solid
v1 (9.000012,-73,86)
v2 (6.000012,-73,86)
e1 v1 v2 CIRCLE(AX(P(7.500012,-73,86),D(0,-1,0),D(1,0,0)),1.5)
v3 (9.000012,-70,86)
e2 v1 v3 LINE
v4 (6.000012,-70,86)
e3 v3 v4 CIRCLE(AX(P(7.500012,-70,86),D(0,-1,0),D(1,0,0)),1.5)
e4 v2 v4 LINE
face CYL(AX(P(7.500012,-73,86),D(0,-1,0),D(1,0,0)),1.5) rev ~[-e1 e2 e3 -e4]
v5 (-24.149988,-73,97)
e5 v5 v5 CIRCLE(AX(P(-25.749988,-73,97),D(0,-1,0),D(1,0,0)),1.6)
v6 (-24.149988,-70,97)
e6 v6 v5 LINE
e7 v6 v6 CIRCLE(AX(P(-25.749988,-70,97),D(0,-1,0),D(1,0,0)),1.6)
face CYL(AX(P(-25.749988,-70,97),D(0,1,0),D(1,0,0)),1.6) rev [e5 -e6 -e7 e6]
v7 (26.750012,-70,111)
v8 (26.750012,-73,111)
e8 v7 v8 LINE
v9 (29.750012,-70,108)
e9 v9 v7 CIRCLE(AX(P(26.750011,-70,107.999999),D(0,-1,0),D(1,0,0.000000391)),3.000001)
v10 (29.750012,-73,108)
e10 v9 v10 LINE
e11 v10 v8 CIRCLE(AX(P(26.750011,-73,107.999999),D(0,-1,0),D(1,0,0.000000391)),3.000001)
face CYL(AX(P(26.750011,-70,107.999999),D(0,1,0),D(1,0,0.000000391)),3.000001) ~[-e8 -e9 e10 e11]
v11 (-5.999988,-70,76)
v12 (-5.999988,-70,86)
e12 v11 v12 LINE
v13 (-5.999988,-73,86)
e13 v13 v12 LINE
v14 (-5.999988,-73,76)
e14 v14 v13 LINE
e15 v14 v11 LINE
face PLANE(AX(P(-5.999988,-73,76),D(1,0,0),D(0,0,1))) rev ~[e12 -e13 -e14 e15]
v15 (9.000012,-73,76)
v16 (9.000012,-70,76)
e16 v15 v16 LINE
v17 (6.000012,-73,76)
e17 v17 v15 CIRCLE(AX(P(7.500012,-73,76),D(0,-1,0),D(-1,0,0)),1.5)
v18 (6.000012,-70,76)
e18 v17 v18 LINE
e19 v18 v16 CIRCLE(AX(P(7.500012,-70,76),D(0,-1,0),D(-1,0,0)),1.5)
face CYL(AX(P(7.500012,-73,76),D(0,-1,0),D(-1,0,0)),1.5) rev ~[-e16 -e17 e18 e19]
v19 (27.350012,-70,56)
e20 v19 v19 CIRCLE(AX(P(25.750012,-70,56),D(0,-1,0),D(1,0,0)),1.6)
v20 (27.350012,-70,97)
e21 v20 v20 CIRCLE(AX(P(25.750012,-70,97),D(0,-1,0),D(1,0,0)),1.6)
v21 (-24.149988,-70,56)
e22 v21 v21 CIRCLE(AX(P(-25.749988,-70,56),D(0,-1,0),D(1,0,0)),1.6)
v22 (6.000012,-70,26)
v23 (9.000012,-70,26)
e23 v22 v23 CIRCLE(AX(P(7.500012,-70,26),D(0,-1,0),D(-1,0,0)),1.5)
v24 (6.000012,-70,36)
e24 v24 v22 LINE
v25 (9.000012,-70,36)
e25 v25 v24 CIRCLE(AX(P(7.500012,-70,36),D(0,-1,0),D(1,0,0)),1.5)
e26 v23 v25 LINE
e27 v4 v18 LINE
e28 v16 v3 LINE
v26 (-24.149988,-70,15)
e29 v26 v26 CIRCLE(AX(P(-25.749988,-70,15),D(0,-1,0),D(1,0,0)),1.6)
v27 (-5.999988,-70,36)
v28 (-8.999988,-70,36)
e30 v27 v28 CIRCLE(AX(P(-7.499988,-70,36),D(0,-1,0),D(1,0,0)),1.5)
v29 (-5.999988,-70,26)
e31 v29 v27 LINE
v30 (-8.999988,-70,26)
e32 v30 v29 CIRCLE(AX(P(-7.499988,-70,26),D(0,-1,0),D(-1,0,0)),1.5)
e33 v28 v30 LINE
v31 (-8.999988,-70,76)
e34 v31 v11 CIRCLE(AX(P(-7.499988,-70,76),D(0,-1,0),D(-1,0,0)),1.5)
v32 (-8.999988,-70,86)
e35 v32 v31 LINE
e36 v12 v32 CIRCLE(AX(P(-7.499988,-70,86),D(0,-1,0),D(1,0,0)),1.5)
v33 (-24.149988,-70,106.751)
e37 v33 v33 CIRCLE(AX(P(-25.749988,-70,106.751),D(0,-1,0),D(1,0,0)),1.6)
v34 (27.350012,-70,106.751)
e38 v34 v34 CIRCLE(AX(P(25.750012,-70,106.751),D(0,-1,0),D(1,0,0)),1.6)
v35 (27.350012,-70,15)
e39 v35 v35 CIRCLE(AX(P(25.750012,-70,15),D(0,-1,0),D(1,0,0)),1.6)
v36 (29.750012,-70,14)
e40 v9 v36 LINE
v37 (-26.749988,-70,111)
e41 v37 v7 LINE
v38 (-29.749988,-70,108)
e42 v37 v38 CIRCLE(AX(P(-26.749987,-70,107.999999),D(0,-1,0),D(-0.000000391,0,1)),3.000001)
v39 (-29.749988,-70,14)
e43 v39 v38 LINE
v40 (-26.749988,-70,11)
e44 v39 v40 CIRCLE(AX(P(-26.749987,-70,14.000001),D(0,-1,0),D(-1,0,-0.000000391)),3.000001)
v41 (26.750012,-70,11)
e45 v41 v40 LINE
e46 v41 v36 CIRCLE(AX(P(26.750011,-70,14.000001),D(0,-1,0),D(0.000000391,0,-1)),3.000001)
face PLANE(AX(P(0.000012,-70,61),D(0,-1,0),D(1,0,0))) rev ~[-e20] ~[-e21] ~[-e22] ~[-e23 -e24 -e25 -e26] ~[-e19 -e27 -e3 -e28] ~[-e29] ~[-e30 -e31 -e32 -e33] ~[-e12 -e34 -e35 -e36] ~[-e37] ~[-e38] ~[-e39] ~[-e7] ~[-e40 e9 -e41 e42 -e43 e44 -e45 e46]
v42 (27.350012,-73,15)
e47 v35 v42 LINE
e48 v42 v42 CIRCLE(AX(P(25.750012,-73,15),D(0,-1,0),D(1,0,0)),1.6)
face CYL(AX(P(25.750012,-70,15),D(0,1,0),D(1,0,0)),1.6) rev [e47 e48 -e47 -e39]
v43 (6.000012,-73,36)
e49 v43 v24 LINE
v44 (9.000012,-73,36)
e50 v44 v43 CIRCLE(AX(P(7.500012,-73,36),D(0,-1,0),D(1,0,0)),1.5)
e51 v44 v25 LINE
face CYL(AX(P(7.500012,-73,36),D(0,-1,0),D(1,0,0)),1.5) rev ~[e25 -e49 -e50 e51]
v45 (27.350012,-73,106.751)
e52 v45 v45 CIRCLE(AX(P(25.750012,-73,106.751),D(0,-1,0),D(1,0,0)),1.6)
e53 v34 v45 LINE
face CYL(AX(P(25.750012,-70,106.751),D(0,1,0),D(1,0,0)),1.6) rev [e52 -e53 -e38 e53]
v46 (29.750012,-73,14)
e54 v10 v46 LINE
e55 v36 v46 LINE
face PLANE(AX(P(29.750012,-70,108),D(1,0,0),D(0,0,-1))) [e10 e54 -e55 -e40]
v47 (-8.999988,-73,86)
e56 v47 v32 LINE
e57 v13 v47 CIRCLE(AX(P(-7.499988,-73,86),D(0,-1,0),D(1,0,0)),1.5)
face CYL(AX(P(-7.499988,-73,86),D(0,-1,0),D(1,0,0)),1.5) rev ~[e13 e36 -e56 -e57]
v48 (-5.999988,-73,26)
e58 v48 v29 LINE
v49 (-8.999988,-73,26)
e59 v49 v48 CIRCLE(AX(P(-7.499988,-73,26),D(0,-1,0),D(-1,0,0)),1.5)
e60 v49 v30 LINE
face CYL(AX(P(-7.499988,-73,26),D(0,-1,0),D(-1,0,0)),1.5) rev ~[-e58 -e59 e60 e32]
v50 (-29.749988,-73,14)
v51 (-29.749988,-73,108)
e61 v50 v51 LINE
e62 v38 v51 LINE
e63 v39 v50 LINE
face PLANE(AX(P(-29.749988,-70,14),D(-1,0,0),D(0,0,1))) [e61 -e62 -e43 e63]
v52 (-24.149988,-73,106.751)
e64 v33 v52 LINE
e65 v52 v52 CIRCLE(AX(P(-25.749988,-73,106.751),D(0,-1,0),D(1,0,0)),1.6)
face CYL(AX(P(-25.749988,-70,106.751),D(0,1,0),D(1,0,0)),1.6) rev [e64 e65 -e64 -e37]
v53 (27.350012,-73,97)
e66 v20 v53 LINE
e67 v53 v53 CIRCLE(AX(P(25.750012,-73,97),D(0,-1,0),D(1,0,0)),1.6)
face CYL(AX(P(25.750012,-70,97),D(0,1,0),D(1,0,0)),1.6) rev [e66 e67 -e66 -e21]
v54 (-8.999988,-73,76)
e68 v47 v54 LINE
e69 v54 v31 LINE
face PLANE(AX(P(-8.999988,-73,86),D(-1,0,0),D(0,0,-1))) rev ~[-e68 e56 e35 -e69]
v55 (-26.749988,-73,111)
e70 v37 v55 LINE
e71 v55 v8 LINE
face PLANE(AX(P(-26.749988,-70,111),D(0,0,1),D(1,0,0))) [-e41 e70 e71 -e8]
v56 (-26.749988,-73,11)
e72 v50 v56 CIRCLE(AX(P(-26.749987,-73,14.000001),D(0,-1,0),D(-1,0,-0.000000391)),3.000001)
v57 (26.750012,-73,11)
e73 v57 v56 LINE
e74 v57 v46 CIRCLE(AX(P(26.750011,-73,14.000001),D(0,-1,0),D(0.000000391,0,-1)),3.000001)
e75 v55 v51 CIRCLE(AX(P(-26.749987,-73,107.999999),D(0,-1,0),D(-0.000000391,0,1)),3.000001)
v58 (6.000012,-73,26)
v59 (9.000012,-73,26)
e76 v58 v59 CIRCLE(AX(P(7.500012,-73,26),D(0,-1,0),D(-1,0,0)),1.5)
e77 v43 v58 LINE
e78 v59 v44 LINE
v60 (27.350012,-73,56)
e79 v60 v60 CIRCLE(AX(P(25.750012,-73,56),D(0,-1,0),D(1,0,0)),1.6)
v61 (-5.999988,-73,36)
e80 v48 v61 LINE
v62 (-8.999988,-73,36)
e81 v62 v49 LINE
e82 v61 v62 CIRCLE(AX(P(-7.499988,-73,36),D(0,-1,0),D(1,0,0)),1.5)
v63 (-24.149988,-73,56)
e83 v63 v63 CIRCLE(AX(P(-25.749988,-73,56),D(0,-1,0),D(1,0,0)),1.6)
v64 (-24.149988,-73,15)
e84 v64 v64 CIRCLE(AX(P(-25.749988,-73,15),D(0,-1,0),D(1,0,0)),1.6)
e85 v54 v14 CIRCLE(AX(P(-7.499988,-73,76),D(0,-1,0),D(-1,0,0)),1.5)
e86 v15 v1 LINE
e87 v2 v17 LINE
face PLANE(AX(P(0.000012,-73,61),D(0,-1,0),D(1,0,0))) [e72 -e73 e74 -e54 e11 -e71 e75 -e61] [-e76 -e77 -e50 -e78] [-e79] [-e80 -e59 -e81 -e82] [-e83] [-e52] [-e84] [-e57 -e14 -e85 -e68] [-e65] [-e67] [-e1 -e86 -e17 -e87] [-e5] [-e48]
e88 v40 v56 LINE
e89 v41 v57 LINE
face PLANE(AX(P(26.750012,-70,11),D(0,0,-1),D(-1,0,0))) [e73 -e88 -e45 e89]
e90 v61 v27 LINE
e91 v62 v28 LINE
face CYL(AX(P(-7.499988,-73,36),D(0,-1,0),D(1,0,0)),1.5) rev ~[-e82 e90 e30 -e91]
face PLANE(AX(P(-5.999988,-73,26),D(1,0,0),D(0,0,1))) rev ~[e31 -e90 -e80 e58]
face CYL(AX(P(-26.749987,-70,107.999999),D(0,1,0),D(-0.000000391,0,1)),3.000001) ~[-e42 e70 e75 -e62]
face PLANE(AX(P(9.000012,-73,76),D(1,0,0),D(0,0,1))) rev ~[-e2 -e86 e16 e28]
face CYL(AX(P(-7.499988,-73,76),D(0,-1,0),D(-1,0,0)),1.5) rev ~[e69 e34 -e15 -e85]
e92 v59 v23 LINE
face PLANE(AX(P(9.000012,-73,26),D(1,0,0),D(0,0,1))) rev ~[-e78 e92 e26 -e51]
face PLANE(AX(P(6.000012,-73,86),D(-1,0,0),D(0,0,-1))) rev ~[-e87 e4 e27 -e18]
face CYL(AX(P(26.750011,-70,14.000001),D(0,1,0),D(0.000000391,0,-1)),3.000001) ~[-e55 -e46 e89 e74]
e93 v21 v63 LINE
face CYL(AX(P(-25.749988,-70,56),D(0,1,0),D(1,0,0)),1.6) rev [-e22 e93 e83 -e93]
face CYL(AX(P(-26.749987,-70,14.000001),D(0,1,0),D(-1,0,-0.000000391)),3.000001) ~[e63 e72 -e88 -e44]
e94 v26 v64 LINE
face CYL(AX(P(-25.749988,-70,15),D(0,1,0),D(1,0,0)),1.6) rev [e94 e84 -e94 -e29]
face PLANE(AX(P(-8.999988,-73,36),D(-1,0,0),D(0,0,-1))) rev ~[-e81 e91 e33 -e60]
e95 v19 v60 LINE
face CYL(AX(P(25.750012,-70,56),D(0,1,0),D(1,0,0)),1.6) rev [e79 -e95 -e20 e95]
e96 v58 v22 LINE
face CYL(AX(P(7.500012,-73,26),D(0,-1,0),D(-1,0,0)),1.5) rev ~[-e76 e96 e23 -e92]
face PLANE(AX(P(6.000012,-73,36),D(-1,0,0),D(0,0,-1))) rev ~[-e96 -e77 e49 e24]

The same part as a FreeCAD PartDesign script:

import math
import FreeCAD as App
import Part
import Sketcher

V = App.Vector

doc = App.newDocument("Part")
body = doc.addObject("PartDesign::Body", "Body")

# Sketch on XZ plane
sketch1 = body.newObject("Sketcher::SketchObject", "Sketch")
sketch1.AttachmentSupport = (doc.getObject("XZ_Plane"), [""])
sketch1.MapMode = "FlatFace"
sketch1.AttachmentOffset = App.Placement(V(0, 0, 70), App.Rotation())
sketch1.addGeometry([
    Part.ArcOfCircle(Part.Circle(V(-26.7, 108, 0), V(0, 0, 1), 3), math.radians(90), math.radians(180)),  # 0
    Part.LineSegment(V(-29.7, 108, 0), V(-29.7, 14, 0)),  # 1
    Part.ArcOfCircle(Part.Circle(V(-26.7, 14, 0), V(0, 0, 1), 3), math.radians(-180), math.radians(-90)),  # 2
    Part.LineSegment(V(-26.7, 11, 0), V(26.8, 11, 0)),  # 3
    Part.ArcOfCircle(Part.Circle(V(26.8, 14, 0), V(0, 0, 1), 3), math.radians(-90), math.radians(0)),  # 4
    Part.LineSegment(V(29.8, 14, 0), V(29.8, 108, 0)),  # 5
    Part.ArcOfCircle(Part.Circle(V(26.8, 108, 0), V(0, 0, 1), 3), math.radians(0), math.radians(90)),  # 6
    Part.LineSegment(V(26.8, 111, 0), V(-26.7, 111, 0)),  # 7
    Part.Circle(V(-25.7, 15, 0), V(0, 0, 1), 1.6),  # 8
    Part.Circle(V(-25.7, 56, 0), V(0, 0, 1), 1.6),  # 9
    Part.Circle(V(25.8, 15, 0), V(0, 0, 1), 1.6),  # 10
    Part.Circle(V(25.8, 56, 0), V(0, 0, 1), 1.6),  # 11
    Part.Circle(V(-25.7, 97, 0), V(0, 0, 1), 1.6),  # 12
    Part.Circle(V(-25.7, 106.8, 0), V(0, 0, 1), 1.6),  # 13
    Part.Circle(V(25.8, 97, 0), V(0, 0, 1), 1.6),  # 14
    Part.Circle(V(25.8, 106.8, 0), V(0, 0, 1), 1.6),  # 15
], False)
sketch1.addConstraint([
    Sketcher.Constraint("Tangent", 0, 2, 1, 1),
    Sketcher.Constraint("Tangent", 1, 2, 2, 1),
    Sketcher.Constraint("Tangent", 2, 2, 3, 1),
    Sketcher.Constraint("Tangent", 3, 2, 4, 1),
    Sketcher.Constraint("Tangent", 4, 2, 5, 1),
    Sketcher.Constraint("Tangent", 5, 2, 6, 1),
    Sketcher.Constraint("Tangent", 6, 2, 7, 1),
    Sketcher.Constraint("Tangent", 7, 2, 0, 1),
    Sketcher.Constraint("Vertical", 1),
    Sketcher.Constraint("Horizontal", 3),
    Sketcher.Constraint("Vertical", 5),
    Sketcher.Constraint("Horizontal", 7),
    Sketcher.Constraint("Equal", 0, 2),
    Sketcher.Constraint("Equal", 2, 4),
    Sketcher.Constraint("Equal", 4, 6),
    Sketcher.Constraint("Equal", 8, 9),
    Sketcher.Constraint("Equal", 9, 10),
    Sketcher.Constraint("Equal", 10, 11),
    Sketcher.Constraint("Equal", 11, 12),
    Sketcher.Constraint("Equal", 12, 13),
    Sketcher.Constraint("Equal", 13, 14),
    Sketcher.Constraint("Equal", 14, 15),
    Sketcher.Constraint("Horizontal", 8, 3, 10, 3),
    Sketcher.Constraint("Horizontal", 9, 3, 11, 3),
    Sketcher.Constraint("Horizontal", 12, 3, 14, 3),
    Sketcher.Constraint("Horizontal", 13, 3, 15, 3),
    Sketcher.Constraint("Vertical", 8, 3, 9, 3),
    Sketcher.Constraint("Vertical", 10, 3, 11, 3),
    Sketcher.Constraint("Vertical", 9, 3, 12, 3),
    Sketcher.Constraint("Vertical", 12, 3, 13, 3),
    Sketcher.Constraint("Vertical", 11, 3, 14, 3),
    Sketcher.Constraint("Vertical", 14, 3, 15, 3),
    Sketcher.Constraint("Radius", 0, 3.000001),
    Sketcher.Constraint("Diameter", 8, 3.2),
    Sketcher.Constraint("DistanceY", 1, 2, 1, 1, 94.0),
    Sketcher.Constraint("DistanceX", 3, 1, 3, 2, 53.5),
    Sketcher.Constraint("DistanceY", -1, 1, 0, 3, 107.999999),
    Sketcher.Constraint("DistanceY", -1, 1, 8, 3, 15.0),
    Sketcher.Constraint("DistanceY", -1, 1, 9, 3, 56.0),
    Sketcher.Constraint("DistanceY", -1, 1, 12, 3, 97.0),
    Sketcher.Constraint("DistanceX", 2, 3, 8, 3, 0.999999),
    Sketcher.Constraint("DistanceX", 10, 3, 4, 3, 0.999999),
    Sketcher.Constraint("DistanceY", -1, 1, 13, 3, 106.751),
    Sketcher.Constraint("DistanceX", -1, 1, 4, 3, 26.750011),
])
pad1 = body.newObject("PartDesign::Pad", "Pad")
pad1.Profile = sketch1
pad1.Length = 3

# Sketch on XZ plane
sketch2 = body.newObject("Sketcher::SketchObject", "Sketch001")
sketch2.AttachmentSupport = (doc.getObject("XZ_Plane"), [""])
sketch2.MapMode = "FlatFace"
sketch2.AttachmentOffset = App.Placement(V(0, 0, 73), App.Rotation())
sketch2.addGeometry([
    Part.ArcOfCircle(Part.Circle(V(-7.5, 86, 0), V(0, 0, 1), 1.5), math.radians(0), math.radians(180)),  # 0
    Part.LineSegment(V(-9, 86, 0), V(-9, 76, 0)),  # 1
    Part.ArcOfCircle(Part.Circle(V(-7.5, 76, 0), V(0, 0, 1), 1.5), math.radians(180), math.radians(360)),  # 2
    Part.LineSegment(V(-6, 76, 0), V(-6, 86, 0)),  # 3
    Part.ArcOfCircle(Part.Circle(V(7.5, 86, 0), V(0, 0, 1), 1.5), math.radians(0), math.radians(180)),  # 4
    Part.LineSegment(V(6, 86, 0), V(6, 76, 0)),  # 5
    Part.ArcOfCircle(Part.Circle(V(7.5, 76, 0), V(0, 0, 1), 1.5), math.radians(180), math.radians(360)),  # 6
    Part.LineSegment(V(9, 76, 0), V(9, 86, 0)),  # 7
], False)
sketch2.addConstraint([
    Sketcher.Constraint("Tangent", 0, 2, 1, 1),
    Sketcher.Constraint("Tangent", 1, 2, 2, 1),
    Sketcher.Constraint("Tangent", 2, 2, 3, 1),
    Sketcher.Constraint("Tangent", 3, 2, 0, 1),
    Sketcher.Constraint("Tangent", 4, 2, 5, 1),
    Sketcher.Constraint("Tangent", 5, 2, 6, 1),
    Sketcher.Constraint("Tangent", 6, 2, 7, 1),
    Sketcher.Constraint("Tangent", 7, 2, 4, 1),
    Sketcher.Constraint("Vertical", 1),
    Sketcher.Constraint("Vertical", 3),
    Sketcher.Constraint("Vertical", 5),
    Sketcher.Constraint("Vertical", 7),
    Sketcher.Constraint("Equal", 2, 4),
    Sketcher.Constraint("Horizontal", 0, 3, 4, 3),
    Sketcher.Constraint("Horizontal", 2, 3, 6, 3),
    Sketcher.Constraint("Radius", 0, 1.5),
    Sketcher.Constraint("DistanceY", 1, 2, 1, 1, 10.0),
    Sketcher.Constraint("DistanceY", -1, 1, 0, 3, 86.0),
    Sketcher.Constraint("DistanceX", 0, 3, 4, 3, 15.0),
    Sketcher.Constraint("DistanceX", 0, 3, -1, 1, 7.499988),
])
pocket1 = body.newObject("PartDesign::Pocket", "Pocket")
pocket1.Profile = sketch2
pocket1.Type = "ThroughAll"
doc.recompute()

linearpattern = body.newObject("PartDesign::LinearPattern", "LinearPattern")
linearpattern.Originals = [pocket1]
linearpattern.Direction = (doc.getObject("Z_Axis"), [""])
linearpattern.Mode = "offset"
linearpattern.Offset = 50
linearpattern.Occurrences = 2
linearpattern.Reversed = True
body.Tip = linearpattern

doc.recompute()
